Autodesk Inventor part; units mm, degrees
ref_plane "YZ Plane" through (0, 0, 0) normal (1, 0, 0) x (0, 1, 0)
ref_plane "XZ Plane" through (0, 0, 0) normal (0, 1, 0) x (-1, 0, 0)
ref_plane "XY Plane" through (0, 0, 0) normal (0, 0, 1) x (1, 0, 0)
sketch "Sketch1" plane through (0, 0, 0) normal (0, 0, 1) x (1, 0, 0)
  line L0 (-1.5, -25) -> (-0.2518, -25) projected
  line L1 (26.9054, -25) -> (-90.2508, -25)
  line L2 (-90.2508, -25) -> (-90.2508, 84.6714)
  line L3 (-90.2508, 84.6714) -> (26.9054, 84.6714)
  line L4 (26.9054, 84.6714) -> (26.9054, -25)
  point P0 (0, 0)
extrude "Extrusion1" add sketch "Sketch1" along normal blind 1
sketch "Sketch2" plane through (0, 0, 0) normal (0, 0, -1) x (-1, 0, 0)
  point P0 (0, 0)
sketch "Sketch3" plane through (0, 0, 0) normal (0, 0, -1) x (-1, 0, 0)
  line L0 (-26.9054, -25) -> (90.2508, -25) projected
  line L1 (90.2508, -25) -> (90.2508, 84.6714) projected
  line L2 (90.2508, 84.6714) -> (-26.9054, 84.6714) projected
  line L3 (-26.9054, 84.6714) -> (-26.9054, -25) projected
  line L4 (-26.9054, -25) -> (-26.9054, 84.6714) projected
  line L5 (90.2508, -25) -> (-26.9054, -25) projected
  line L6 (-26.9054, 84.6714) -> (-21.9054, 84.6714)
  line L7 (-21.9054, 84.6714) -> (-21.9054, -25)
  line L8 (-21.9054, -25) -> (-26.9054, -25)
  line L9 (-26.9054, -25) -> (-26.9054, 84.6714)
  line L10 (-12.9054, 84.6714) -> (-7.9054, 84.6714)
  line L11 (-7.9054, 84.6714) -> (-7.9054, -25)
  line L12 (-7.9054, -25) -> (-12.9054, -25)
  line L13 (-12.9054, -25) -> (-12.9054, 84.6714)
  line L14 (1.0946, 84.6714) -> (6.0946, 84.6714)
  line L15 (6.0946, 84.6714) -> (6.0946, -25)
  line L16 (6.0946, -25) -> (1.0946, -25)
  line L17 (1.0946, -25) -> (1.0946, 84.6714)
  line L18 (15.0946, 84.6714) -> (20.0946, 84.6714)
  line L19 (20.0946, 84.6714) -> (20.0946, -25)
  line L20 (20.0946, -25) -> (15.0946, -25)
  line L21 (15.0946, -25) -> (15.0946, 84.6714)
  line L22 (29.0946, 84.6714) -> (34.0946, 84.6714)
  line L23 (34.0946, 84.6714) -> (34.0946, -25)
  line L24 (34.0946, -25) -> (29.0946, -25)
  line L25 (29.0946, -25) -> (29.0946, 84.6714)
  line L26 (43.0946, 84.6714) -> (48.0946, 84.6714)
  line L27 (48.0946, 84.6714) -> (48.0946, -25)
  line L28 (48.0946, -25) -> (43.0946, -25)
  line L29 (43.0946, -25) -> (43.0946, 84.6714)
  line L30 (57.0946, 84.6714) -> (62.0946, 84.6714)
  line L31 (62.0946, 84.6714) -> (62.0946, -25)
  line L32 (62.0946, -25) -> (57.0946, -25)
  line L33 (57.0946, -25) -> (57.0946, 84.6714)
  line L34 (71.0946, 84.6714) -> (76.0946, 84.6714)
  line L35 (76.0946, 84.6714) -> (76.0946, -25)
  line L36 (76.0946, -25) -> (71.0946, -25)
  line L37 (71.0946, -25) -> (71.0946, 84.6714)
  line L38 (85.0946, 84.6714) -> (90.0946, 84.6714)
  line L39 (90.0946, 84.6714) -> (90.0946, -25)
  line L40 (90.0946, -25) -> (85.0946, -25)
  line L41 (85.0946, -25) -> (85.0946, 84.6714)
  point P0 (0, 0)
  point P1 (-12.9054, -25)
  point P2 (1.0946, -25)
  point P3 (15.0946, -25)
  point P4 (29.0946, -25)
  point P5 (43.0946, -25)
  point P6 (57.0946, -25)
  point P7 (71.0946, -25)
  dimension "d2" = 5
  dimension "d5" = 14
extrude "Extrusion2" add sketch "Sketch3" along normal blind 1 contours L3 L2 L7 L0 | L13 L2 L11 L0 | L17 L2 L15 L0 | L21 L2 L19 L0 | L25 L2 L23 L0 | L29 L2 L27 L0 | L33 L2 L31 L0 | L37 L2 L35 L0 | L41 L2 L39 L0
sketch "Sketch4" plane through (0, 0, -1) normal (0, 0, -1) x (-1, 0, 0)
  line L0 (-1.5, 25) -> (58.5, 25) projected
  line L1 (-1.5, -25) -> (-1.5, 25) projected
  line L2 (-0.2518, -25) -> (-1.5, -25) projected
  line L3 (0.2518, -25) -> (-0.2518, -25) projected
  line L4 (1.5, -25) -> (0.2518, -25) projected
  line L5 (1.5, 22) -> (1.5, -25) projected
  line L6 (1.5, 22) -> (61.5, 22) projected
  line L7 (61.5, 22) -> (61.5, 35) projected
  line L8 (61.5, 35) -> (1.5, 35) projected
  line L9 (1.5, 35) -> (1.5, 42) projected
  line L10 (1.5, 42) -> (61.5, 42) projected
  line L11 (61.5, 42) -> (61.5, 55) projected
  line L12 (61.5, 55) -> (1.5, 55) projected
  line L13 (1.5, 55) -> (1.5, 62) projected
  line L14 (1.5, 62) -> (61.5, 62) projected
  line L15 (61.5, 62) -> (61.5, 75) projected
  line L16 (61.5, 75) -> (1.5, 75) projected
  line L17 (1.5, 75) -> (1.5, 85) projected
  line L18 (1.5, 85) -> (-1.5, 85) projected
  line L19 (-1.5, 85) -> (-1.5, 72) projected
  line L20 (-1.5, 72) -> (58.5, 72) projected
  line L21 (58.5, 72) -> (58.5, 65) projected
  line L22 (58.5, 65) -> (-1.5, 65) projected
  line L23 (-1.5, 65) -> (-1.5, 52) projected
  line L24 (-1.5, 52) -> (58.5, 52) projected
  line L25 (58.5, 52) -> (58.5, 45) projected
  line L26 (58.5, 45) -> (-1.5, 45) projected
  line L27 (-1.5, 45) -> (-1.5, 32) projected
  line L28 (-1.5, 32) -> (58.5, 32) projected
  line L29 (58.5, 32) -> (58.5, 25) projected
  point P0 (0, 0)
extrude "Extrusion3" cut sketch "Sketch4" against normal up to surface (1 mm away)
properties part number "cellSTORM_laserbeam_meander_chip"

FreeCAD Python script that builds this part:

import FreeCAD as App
import Part
import Sketcher

V = App.Vector
Q = App.Units.Quantity


def add_polygon(sketch, points):
    """Adds a closed chain of lines whose ends are joined by coincident constraints."""
    first, n = sketch.GeometryCount, len(points)
    for a, b in zip(points, points[1:] + points[:1]):
        sketch.addGeometry(Part.LineSegment(App.Vector(*a, 0), App.Vector(*b, 0)), False)
    for i in range(n):
        sketch.addConstraint(Sketcher.Constraint("Coincident", first + i, 2, first + (i + 1) % n, 1))

doc = App.newDocument("Part")
body = doc.addObject("PartDesign::Body", "Body")

# Sketch on XY plane
sketch1 = body.newObject("Sketcher::SketchObject", "Sketch")
sketch1.AttachmentSupport = (doc.getObject("XY_Plane"), [""])
sketch1.MapMode = "FlatFace"
add_polygon(sketch1, [(-90, -25), (27, -25), (27, 85), (-90, 85)])  # lines 0-3
sketch1.addConstraint(Sketcher.Constraint("Horizontal", 0))
sketch1.addConstraint(Sketcher.Constraint("Vertical", 1))
sketch1.addConstraint(Sketcher.Constraint("Horizontal", 2))
sketch1.addConstraint(Sketcher.Constraint("Vertical", 3))
sketch1.addConstraint(Sketcher.Constraint("DistanceY", 0, 2, -1, 1, Q("25 mm")))
sketch1.addConstraint(Sketcher.Constraint("DistanceX", 0, 1, 0, 2, Q("117.1562 mm")))
sketch1.addConstraint(Sketcher.Constraint("DistanceY", 1, 1, 1, 2, Q("109.6714 mm")))
sketch1.addConstraint(Sketcher.Constraint("DistanceX", -1, 1, 0, 2, Q("26.9054 mm")))
pad1 = body.newObject("PartDesign::Pad", "Pad")
pad1.Profile = sketch1
pad1.Length = 1

# Sketch on XY plane
sketch2 = body.newObject("Sketcher::SketchObject", "Sketch001")
sketch2.AttachmentSupport = (doc.getObject("XY_Plane"), [""])
sketch2.MapMode = "FlatFace"
add_polygon(sketch2, [(27, 85), (27, -25), (22, -25), (22, 85)])  # lines 0-3
add_polygon(sketch2, [(13, 85), (13, -25), (8, -25), (8, 85)])  # lines 4-7
add_polygon(sketch2, [(-1, 85), (-1, -25), (-6, -25), (-6, 85)])  # lines 8-11
add_polygon(sketch2, [(-15, 85), (-15, -25), (-20, -25), (-20, 85)])  # lines 12-15
add_polygon(sketch2, [(-29, 85), (-29, -25), (-34, -25), (-34, 85)])  # lines 16-19
add_polygon(sketch2, [(-43, 85), (-43, -25), (-48, -25), (-48, 85)])  # lines 20-23
add_polygon(sketch2, [(-57, 85), (-57, -25), (-62, -25), (-62, 85)])  # lines 24-27
add_polygon(sketch2, [(-71, 85), (-71, -25), (-76, -25), (-76, 85)])  # lines 28-31
add_polygon(sketch2, [(-85, 85), (-85, -25), (-90, -25), (-90, 85)])  # lines 32-35
sketch2.addConstraint(Sketcher.Constraint("Vertical", 0))
sketch2.addConstraint(Sketcher.Constraint("Horizontal", 1))
sketch2.addConstraint(Sketcher.Constraint("Vertical", 2))
sketch2.addConstraint(Sketcher.Constraint("Horizontal", 3))
sketch2.addConstraint(Sketcher.Constraint("Vertical", 4))
sketch2.addConstraint(Sketcher.Constraint("Horizontal", 5))
sketch2.addConstraint(Sketcher.Constraint("Vertical", 6))
sketch2.addConstraint(Sketcher.Constraint("Horizontal", 7))
sketch2.addConstraint(Sketcher.Constraint("Vertical", 8))
sketch2.addConstraint(Sketcher.Constraint("Horizontal", 9))
sketch2.addConstraint(Sketcher.Constraint("Vertical", 10))
sketch2.addConstraint(Sketcher.Constraint("Horizontal", 11))
sketch2.addConstraint(Sketcher.Constraint("Vertical", 12))
sketch2.addConstraint(Sketcher.Constraint("Horizontal", 13))
sketch2.addConstraint(Sketcher.Constraint("Vertical", 14))
sketch2.addConstraint(Sketcher.Constraint("Horizontal", 15))
sketch2.addConstraint(Sketcher.Constraint("Vertical", 16))
sketch2.addConstraint(Sketcher.Constraint("Horizontal", 17))
sketch2.addConstraint(Sketcher.Constraint("Vertical", 18))
sketch2.addConstraint(Sketcher.Constraint("Horizontal", 19))
sketch2.addConstraint(Sketcher.Constraint("Vertical", 20))
sketch2.addConstraint(Sketcher.Constraint("Horizontal", 21))
sketch2.addConstraint(Sketcher.Constraint("Vertical", 22))
sketch2.addConstraint(Sketcher.Constraint("Horizontal", 23))
sketch2.addConstraint(Sketcher.Constraint("Vertical", 24))
sketch2.addConstraint(Sketcher.Constraint("Horizontal", 25))
sketch2.addConstraint(Sketcher.Constraint("Vertical", 26))
sketch2.addConstraint(Sketcher.Constraint("Horizontal", 27))
sketch2.addConstraint(Sketcher.Constraint("Vertical", 28))
sketch2.addConstraint(Sketcher.Constraint("Horizontal", 29))
sketch2.addConstraint(Sketcher.Constraint("Vertical", 30))
sketch2.addConstraint(Sketcher.Constraint("Horizontal", 31))
sketch2.addConstraint(Sketcher.Constraint("Vertical", 32))
sketch2.addConstraint(Sketcher.Constraint("Horizontal", 33))
sketch2.addConstraint(Sketcher.Constraint("Vertical", 34))
sketch2.addConstraint(Sketcher.Constraint("Horizontal", 35))
sketch2.addConstraint(Sketcher.Constraint("Horizontal", 1, 2, 4, 2))
sketch2.addConstraint(Sketcher.Constraint("Horizontal", 3, 2, 6, 2))
sketch2.addConstraint(Sketcher.Constraint("Horizontal", 5, 2, 8, 2))
sketch2.addConstraint(Sketcher.Constraint("Horizontal", 7, 2, 10, 2))
sketch2.addConstraint(Sketcher.Constraint("Horizontal", 9, 2, 12, 2))
sketch2.addConstraint(Sketcher.Constraint("Horizontal", 11, 2, 14, 2))
sketch2.addConstraint(Sketcher.Constraint("Horizontal", 13, 2, 16, 2))
sketch2.addConstraint(Sketcher.Constraint("Horizontal", 15, 2, 18, 2))
sketch2.addConstraint(Sketcher.Constraint("Horizontal", 17, 2, 20, 2))
sketch2.addConstraint(Sketcher.Constraint("Horizontal", 19, 2, 22, 2))
sketch2.addConstraint(Sketcher.Constraint("Horizontal", 21, 2, 24, 2))
sketch2.addConstraint(Sketcher.Constraint("Horizontal", 23, 2, 26, 2))
sketch2.addConstraint(Sketcher.Constraint("Horizontal", 25, 2, 28, 2))
sketch2.addConstraint(Sketcher.Constraint("Horizontal", 27, 2, 30, 2))
sketch2.addConstraint(Sketcher.Constraint("Horizontal", 29, 2, 32, 2))
sketch2.addConstraint(Sketcher.Constraint("Horizontal", 31, 2, 34, 2))
sketch2.addConstraint(Sketcher.Constraint("Equal", 3, 5))
sketch2.addConstraint(Sketcher.Constraint("Equal", 7, 9))
sketch2.addConstraint(Sketcher.Constraint("Equal", 11, 13))
sketch2.addConstraint(Sketcher.Constraint("Equal", 15, 17))
sketch2.addConstraint(Sketcher.Constraint("Equal", 19, 21))
sketch2.addConstraint(Sketcher.Constraint("Equal", 23, 25))
sketch2.addConstraint(Sketcher.Constraint("Equal", 27, 29))
sketch2.addConstraint(Sketcher.Constraint("Equal", 31, 33))
sketch2.addConstraint(Sketcher.Constraint("DistanceX", 1, 2, 1, 1, Q("5 mm")))
sketch2.addConstraint(Sketcher.Constraint("DistanceX", 4, 2, 0, 2, Q("14 mm")))
sketch2.addConstraint(Sketcher.Constraint("DistanceX", 8, 2, 4, 2, Q("14 mm")))
sketch2.addConstraint(Sketcher.Constraint("DistanceX", 12, 2, 8, 2, Q("14 mm")))
sketch2.addConstraint(Sketcher.Constraint("DistanceX", 16, 2, 12, 2, Q("14 mm")))
sketch2.addConstraint(Sketcher.Constraint("DistanceX", 20, 2, 16, 2, Q("14 mm")))
sketch2.addConstraint(Sketcher.Constraint("DistanceX", 24, 2, 20, 2, Q("14 mm")))
sketch2.addConstraint(Sketcher.Constraint("DistanceX", 28, 2, 24, 2, Q("14 mm")))
sketch2.addConstraint(Sketcher.Constraint("DistanceX", 32, 2, 28, 2, Q("14 mm")))
sketch2.addConstraint(Sketcher.Constraint("DistanceY", 0, 2, -1, 1, Q("25 mm")))
sketch2.addConstraint(Sketcher.Constraint("DistanceY", 0, 2, 0, 1, Q("109.6714 mm")))
sketch2.addConstraint(Sketcher.Constraint("DistanceX", -1, 1, 0, 2, Q("26.9054 mm")))
pad2 = body.newObject("PartDesign::Pad", "Pad001")
pad2.Profile = sketch2
pad2.Length = 1
pad2.Reversed = True

# Sketch on XY plane
sketch3 = body.newObject("Sketcher::SketchObject", "Sketch002")
sketch3.AttachmentSupport = (doc.getObject("XY_Plane"), [""])
sketch3.MapMode = "FlatFace"
sketch3.AttachmentOffset = App.Placement(V(0, 0, -1), App.Rotation())
add_polygon(sketch3, [(-58.5, 25), (1.5, 25), (1.5, -25), (-1.5, -25), (-1.5, 22), (-61.5, 22), (-61.5, 35), (-1.5, 35), (-1.5, 42), (-61.5, 42), (-61.5, 55), (-1.5, 55), (-1.5, 62), (-61.5, 62), (-61.5, 75), (-1.5, 75), (-1.5, 85), (1.5, 85), (1.5, 72), (-58.5, 72), (-58.5, 65), (1.5, 65), (1.5, 52), (-58.5, 52), (-58.5, 45), (1.5, 45), (1.5, 32), (-58.5, 32)])  # lines 0-27
sketch3.addConstraint(Sketcher.Constraint("Horizontal", 0))
sketch3.addConstraint(Sketcher.Constraint("Vertical", 1))
sketch3.addConstraint(Sketcher.Constraint("Horizontal", 2))
sketch3.addConstraint(Sketcher.Constraint("Vertical", 3))
sketch3.addConstraint(Sketcher.Constraint("Horizontal", 4))
sketch3.addConstraint(Sketcher.Constraint("Vertical", 5))
sketch3.addConstraint(Sketcher.Constraint("Horizontal", 6))
sketch3.addConstraint(Sketcher.Constraint("Vertical", 7))
sketch3.addConstraint(Sketcher.Constraint("Horizontal", 8))
sketch3.addConstraint(Sketcher.Constraint("Vertical", 9))
sketch3.addConstraint(Sketcher.Constraint("Horizontal", 10))
sketch3.addConstraint(Sketcher.Constraint("Vertical", 11))
sketch3.addConstraint(Sketcher.Constraint("Horizontal", 12))
sketch3.addConstraint(Sketcher.Constraint("Vertical", 13))
sketch3.addConstraint(Sketcher.Constraint("Horizontal", 14))
sketch3.addConstraint(Sketcher.Constraint("Vertical", 15))
sketch3.addConstraint(Sketcher.Constraint("Horizontal", 16))
sketch3.addConstraint(Sketcher.Constraint("Vertical", 17))
sketch3.addConstraint(Sketcher.Constraint("Horizontal", 18))
sketch3.addConstraint(Sketcher.Constraint("Vertical", 19))
sketch3.addConstraint(Sketcher.Constraint("Horizontal", 20))
sketch3.addConstraint(Sketcher.Constraint("Vertical", 21))
sketch3.addConstraint(Sketcher.Constraint("Horizontal", 22))
sketch3.addConstraint(Sketcher.Constraint("Vertical", 23))
sketch3.addConstraint(Sketcher.Constraint("Horizontal", 24))
sketch3.addConstraint(Sketcher.Constraint("Vertical", 25))
sketch3.addConstraint(Sketcher.Constraint("Horizontal", 26))
sketch3.addConstraint(Sketcher.Constraint("Vertical", 27))
sketch3.addConstraint(Sketcher.Constraint("Symmetric", 0, 2, 2, 2, -1, 1))
sketch3.addConstraint(Sketcher.Constraint("Vertical", 3, 2, 6, 2))
sketch3.addConstraint(Sketcher.Constraint("Vertical", 5, 2, 8, 2))
sketch3.addConstraint(Sketcher.Constraint("Vertical", 7, 2, 10, 2))
sketch3.addConstraint(Sketcher.Constraint("Vertical", 9, 2, 12, 2))
sketch3.addConstraint(Sketcher.Constraint("Vertical", 11, 2, 14, 2))
sketch3.addConstraint(Sketcher.Constraint("Vertical", 1, 2, 16, 2))
sketch3.addConstraint(Sketcher.Constraint("Vertical", 17, 2, 20, 2))
sketch3.addConstraint(Sketcher.Constraint("Vertical", 19, 2, 22, 2))
sketch3.addConstraint(Sketcher.Constraint("Vertical", 21, 2, 24, 2))
sketch3.addConstraint(Sketcher.Constraint("Vertical", 23, 2, 26, 2))
sketch3.addConstraint(Sketcher.Constraint("Equal", 0, 4))
sketch3.addConstraint(Sketcher.Constraint("Equal", 5, 9))
sketch3.addConstraint(Sketcher.Constraint("Equal", 7, 11))
sketch3.addConstraint(Sketcher.Constraint("Equal", 9, 13))
sketch3.addConstraint(Sketcher.Constraint("Equal", 13, 17))
sketch3.addConstraint(Sketcher.Constraint("Equal", 11, 19))
sketch3.addConstraint(Sketcher.Constraint("Equal", 17, 21))
sketch3.addConstraint(Sketcher.Constraint("Equal", 19, 23))
sketch3.addConstraint(Sketcher.Constraint("Equal", 21, 25))
sketch3.addConstraint(Sketcher.Constraint("Equal", 23, 27))
sketch3.addConstraint(Sketcher.Constraint("DistanceX", 0, 1, 0, 2, Q("60 mm")))
sketch3.addConstraint(Sketcher.Constraint("DistanceX", 2, 2, 2, 1, Q("3 mm")))
sketch3.addConstraint(Sketcher.Constraint("DistanceY", 1, 2, 1, 1, Q("50 mm")))
sketch3.addConstraint(Sketcher.Constraint("DistanceY", 3, 1, 3, 2, Q("47 mm")))
sketch3.addConstraint(Sketcher.Constraint("DistanceY", 5, 1, 5, 2, Q("13 mm")))
sketch3.addConstraint(Sketcher.Constraint("DistanceY", 7, 1, 7, 2, Q("7 mm")))
pocket1 = body.newObject("PartDesign::Pocket", "Pocket")
pocket1.Profile = sketch3
pocket1.Length = 1
pocket1.Reversed = True

doc.recompute()
